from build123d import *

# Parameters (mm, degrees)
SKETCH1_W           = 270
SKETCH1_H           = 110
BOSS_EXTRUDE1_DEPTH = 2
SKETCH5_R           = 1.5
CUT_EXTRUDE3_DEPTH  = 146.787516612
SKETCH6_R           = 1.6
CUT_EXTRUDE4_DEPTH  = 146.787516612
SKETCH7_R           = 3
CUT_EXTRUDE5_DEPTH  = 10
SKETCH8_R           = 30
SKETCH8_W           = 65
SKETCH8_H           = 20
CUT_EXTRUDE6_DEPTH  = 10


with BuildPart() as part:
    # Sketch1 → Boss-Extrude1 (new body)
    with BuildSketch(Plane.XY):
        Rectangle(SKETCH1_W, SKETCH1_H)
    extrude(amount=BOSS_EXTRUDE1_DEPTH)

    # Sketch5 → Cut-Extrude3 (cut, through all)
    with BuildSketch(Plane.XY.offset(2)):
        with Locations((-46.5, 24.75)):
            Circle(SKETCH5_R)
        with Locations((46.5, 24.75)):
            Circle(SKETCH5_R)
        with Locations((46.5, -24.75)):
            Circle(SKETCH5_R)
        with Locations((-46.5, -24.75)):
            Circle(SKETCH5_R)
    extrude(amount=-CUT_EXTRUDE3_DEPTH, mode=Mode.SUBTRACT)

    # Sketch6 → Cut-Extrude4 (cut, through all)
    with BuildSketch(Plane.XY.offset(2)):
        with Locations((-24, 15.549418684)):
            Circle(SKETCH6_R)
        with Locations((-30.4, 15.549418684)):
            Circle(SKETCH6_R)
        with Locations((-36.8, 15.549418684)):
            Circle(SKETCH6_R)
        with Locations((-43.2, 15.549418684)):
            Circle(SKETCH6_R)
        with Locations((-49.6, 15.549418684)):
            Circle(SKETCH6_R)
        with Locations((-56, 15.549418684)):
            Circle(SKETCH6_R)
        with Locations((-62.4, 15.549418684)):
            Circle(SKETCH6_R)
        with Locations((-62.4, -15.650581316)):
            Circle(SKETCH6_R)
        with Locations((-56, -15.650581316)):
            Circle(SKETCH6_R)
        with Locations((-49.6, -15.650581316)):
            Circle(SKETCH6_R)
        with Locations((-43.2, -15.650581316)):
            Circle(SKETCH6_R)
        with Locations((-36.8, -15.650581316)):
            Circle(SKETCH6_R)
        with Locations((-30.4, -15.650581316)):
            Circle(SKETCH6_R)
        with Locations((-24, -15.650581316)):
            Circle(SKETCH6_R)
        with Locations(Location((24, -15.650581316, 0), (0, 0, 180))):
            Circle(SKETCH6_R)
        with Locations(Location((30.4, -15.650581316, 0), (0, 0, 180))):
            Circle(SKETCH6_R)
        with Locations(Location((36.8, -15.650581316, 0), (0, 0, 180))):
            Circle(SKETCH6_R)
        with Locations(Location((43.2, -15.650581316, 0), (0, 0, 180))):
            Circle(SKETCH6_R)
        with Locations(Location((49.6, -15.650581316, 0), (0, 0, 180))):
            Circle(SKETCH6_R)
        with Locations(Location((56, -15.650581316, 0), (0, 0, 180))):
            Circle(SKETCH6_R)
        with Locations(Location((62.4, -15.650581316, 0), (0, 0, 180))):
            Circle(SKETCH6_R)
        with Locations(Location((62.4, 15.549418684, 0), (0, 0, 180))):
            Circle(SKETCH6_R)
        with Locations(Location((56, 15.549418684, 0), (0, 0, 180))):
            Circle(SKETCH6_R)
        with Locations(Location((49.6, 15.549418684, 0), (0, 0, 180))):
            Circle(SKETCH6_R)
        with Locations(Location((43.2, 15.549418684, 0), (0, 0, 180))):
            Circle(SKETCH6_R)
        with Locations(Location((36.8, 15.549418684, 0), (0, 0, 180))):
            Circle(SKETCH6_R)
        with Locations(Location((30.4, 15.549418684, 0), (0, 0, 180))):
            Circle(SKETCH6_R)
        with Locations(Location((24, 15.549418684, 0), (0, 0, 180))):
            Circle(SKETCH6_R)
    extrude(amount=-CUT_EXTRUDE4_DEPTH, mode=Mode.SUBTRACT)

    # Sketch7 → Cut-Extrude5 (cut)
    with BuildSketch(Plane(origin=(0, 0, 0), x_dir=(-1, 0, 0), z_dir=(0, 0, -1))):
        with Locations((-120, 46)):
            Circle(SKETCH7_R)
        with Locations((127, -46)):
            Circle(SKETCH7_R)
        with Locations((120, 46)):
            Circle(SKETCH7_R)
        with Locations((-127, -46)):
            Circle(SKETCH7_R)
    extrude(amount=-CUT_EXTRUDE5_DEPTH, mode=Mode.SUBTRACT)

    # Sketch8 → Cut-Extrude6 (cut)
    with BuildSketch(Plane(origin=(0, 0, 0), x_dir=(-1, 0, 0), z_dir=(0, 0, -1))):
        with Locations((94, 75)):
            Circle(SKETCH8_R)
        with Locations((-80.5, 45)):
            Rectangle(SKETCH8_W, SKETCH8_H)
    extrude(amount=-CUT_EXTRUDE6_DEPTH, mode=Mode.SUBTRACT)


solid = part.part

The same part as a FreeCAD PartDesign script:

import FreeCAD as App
import Part
import Sketcher
from FreeCAD import Vector


def add_polygon(sketch, points):
    """Adds a closed chain of lines whose ends are joined by coincident constraints."""
    first, n = sketch.GeometryCount, len(points)
    for a, b in zip(points, points[1:] + points[:1]):
        sketch.addGeometry(Part.LineSegment(App.Vector(*a, 0), App.Vector(*b, 0)), False)
    for i in range(n):
        sketch.addConstraint(Sketcher.Constraint("Coincident", first + i, 2, first + (i + 1) % n, 1))

doc = App.newDocument("Part")
body = doc.addObject("PartDesign::Body", "Body")

sketch1 = body.newObject("Sketcher::SketchObject", "Sketch")
sketch1.AttachmentSupport = (doc.getObject("XY_Plane"), [""])
sketch1.MapMode = "FlatFace"
add_polygon(sketch1, [(-135, 55), (-135, -55), (135, -55), (135, 55)])
sketch1.addConstraint(Sketcher.Constraint("Vertical", 0))
sketch1.addConstraint(Sketcher.Constraint("Horizontal", 1))
sketch1.addConstraint(Sketcher.Constraint("Vertical", 2))
sketch1.addConstraint(Sketcher.Constraint("Horizontal", 3))
sketch1.addConstraint(Sketcher.Constraint("Symmetric", 0, 2, 2, 2, -1, 1))
sketch1.addConstraint(Sketcher.Constraint("DistanceX", 1, 1, 1, 2, 270.0))
sketch1.addConstraint(Sketcher.Constraint("DistanceY", 0, 2, 0, 1, 110.0))
pad1 = body.newObject("PartDesign::Pad", "Pad")
pad1.Profile = sketch1
pad1.Length = 2

sketch2 = body.newObject("Sketcher::SketchObject", "Sketch001")
sketch2.AttachmentSupport = (doc.getObject("XY_Plane"), [""])
sketch2.MapMode = "FlatFace"
sketch2.AttachmentOffset = App.Placement(Vector(0, 0, 2), App.Rotation())
sketch2.addGeometry(Part.Circle(Vector(-46.5, 24.8, 0), Vector(0, 0, 1), 1.5), False)
sketch2.addGeometry(Part.Circle(Vector(46.5, 24.8, 0), Vector(0, 0, 1), 1.5), False)
sketch2.addGeometry(Part.Circle(Vector(46.5, -24.8, 0), Vector(0, 0, 1), 1.5), False)
sketch2.addGeometry(Part.Circle(Vector(-46.5, -24.8, 0), Vector(0, 0, 1), 1.5), False)
sketch2.addConstraint(Sketcher.Constraint("Equal", 0, 1))
sketch2.addConstraint(Sketcher.Constraint("Equal", 1, 2))
sketch2.addConstraint(Sketcher.Constraint("Equal", 2, 3))
sketch2.addConstraint(Sketcher.Constraint("Symmetric", 0, 3, 2, 3, -1, 1))
sketch2.addConstraint(Sketcher.Constraint("Symmetric", 1, 3, 3, 3, -1, 1))
sketch2.addConstraint(Sketcher.Constraint("Symmetric", 0, 3, 1, 3, -2))
sketch2.addConstraint(Sketcher.Constraint("Diameter", 0, 3.0))
sketch2.addConstraint(Sketcher.Constraint("DistanceX", 0, 3, 1, 3, 93.0))
sketch2.addConstraint(Sketcher.Constraint("DistanceY", 2, 3, 1, 3, 49.5))
pocket1 = body.newObject("PartDesign::Pocket", "Pocket")
pocket1.Profile = sketch2
pocket1.Type = "ThroughAll"

sketch3 = body.newObject("Sketcher::SketchObject", "Sketch002")
sketch3.AttachmentSupport = (doc.getObject("XY_Plane"), [""])
sketch3.MapMode = "FlatFace"
sketch3.AttachmentOffset = App.Placement(Vector(0, 0, 2), App.Rotation())
sketch3.addGeometry(Part.Circle(Vector(-24, 15.5, 0), Vector(0, 0, 1), 1.6), False)
sketch3.addGeometry(Part.Circle(Vector(-30.4, 15.5, 0), Vector(0, 0, 1), 1.6), False)
sketch3.addGeometry(Part.Circle(Vector(-36.8, 15.5, 0), Vector(0, 0, 1), 1.6), False)
sketch3.addGeometry(Part.Circle(Vector(-43.2, 15.5, 0), Vector(0, 0, 1), 1.6), False)
sketch3.addGeometry(Part.Circle(Vector(-49.6, 15.5, 0), Vector(0, 0, 1), 1.6), False)
sketch3.addGeometry(Part.Circle(Vector(-56, 15.5, 0), Vector(0, 0, 1), 1.6), False)
sketch3.addGeometry(Part.Circle(Vector(-62.4, 15.5, 0), Vector(0, 0, 1), 1.6), False)
sketch3.addGeometry(Part.Circle(Vector(-62.4, -15.7, 0), Vector(0, 0, 1), 1.6), False)
sketch3.addGeometry(Part.Circle(Vector(-56, -15.7, 0), Vector(0, 0, 1), 1.6), False)
sketch3.addGeometry(Part.Circle(Vector(-49.6, -15.7, 0), Vector(0, 0, 1), 1.6), False)
sketch3.addGeometry(Part.Circle(Vector(-43.2, -15.7, 0), Vector(0, 0, 1), 1.6), False)
sketch3.addGeometry(Part.Circle(Vector(-36.8, -15.7, 0), Vector(0, 0, 1), 1.6), False)
sketch3.addGeometry(Part.Circle(Vector(-30.4, -15.7, 0), Vector(0, 0, 1), 1.6), False)
sketch3.addGeometry(Part.Circle(Vector(-24, -15.7, 0), Vector(0, 0, 1), 1.6), False)
sketch3.addGeometry(Part.Circle(Vector(24, -15.7, 0), Vector(0, 0, 1), 1.6), False)
sketch3.addGeometry(Part.Circle(Vector(30.4, -15.7, 0), Vector(0, 0, 1), 1.6), False)
sketch3.addGeometry(Part.Circle(Vector(36.8, -15.7, 0), Vector(0, 0, 1), 1.6), False)
sketch3.addGeometry(Part.Circle(Vector(43.2, -15.7, 0), Vector(0, 0, 1), 1.6), False)
sketch3.addGeometry(Part.Circle(Vector(49.6, -15.7, 0), Vector(0, 0, 1), 1.6), False)
sketch3.addGeometry(Part.Circle(Vector(56, -15.7, 0), Vector(0, 0, 1), 1.6), False)
sketch3.addGeometry(Part.Circle(Vector(62.4, -15.7, 0), Vector(0, 0, 1), 1.6), False)
sketch3.addGeometry(Part.Circle(Vector(62.4, 15.5, 0), Vector(0, 0, 1), 1.6), False)
sketch3.addGeometry(Part.Circle(Vector(56, 15.5, 0), Vector(0, 0, 1), 1.6), False)
sketch3.addGeometry(Part.Circle(Vector(49.6, 15.5, 0), Vector(0, 0, 1), 1.6), False)
sketch3.addGeometry(Part.Circle(Vector(43.2, 15.5, 0), Vector(0, 0, 1), 1.6), False)
sketch3.addGeometry(Part.Circle(Vector(36.8, 15.5, 0), Vector(0, 0, 1), 1.6), False)
sketch3.addGeometry(Part.Circle(Vector(30.4, 15.5, 0), Vector(0, 0, 1), 1.6), False)
sketch3.addGeometry(Part.Circle(Vector(24, 15.5, 0), Vector(0, 0, 1), 1.6), False)
sketch3.addConstraint(Sketcher.Constraint("Equal", 0, 1))
sketch3.addConstraint(Sketcher.Constraint("Equal", 1, 2))
sketch3.addConstraint(Sketcher.Constraint("Equal", 2, 3))
sketch3.addConstraint(Sketcher.Constraint("Equal", 3, 4))
sketch3.addConstraint(Sketcher.Constraint("Equal", 4, 5))
sketch3.addConstraint(Sketcher.Constraint("Equal", 5, 6))
sketch3.addConstraint(Sketcher.Constraint("Equal", 6, 7))
sketch3.addConstraint(Sketcher.Constraint("Equal", 7, 8))
sketch3.addConstraint(Sketcher.Constraint("Equal", 8, 9))
sketch3.addConstraint(Sketcher.Constraint("Equal", 9, 10))
sketch3.addConstraint(Sketcher.Constraint("Equal", 10, 11))
sketch3.addConstraint(Sketcher.Constraint("Equal", 11, 12))
sketch3.addConstraint(Sketcher.Constraint("Equal", 12, 13))
sketch3.addConstraint(Sketcher.Constraint("Equal", 13, 14))
sketch3.addConstraint(Sketcher.Constraint("Equal", 14, 15))
sketch3.addConstraint(Sketcher.Constraint("Equal", 15, 16))
sketch3.addConstraint(Sketcher.Constraint("Equal", 16, 17))
sketch3.addConstraint(Sketcher.Constraint("Equal", 17, 18))
sketch3.addConstraint(Sketcher.Constraint("Equal", 18, 19))
sketch3.addConstraint(Sketcher.Constraint("Equal", 19, 20))
sketch3.addConstraint(Sketcher.Constraint("Equal", 20, 21))
sketch3.addConstraint(Sketcher.Constraint("Equal", 21, 22))
sketch3.addConstraint(Sketcher.Constraint("Equal", 22, 23))
sketch3.addConstraint(Sketcher.Constraint("Equal", 23, 24))
sketch3.addConstraint(Sketcher.Constraint("Equal", 24, 25))
sketch3.addConstraint(Sketcher.Constraint("Equal", 25, 26))
sketch3.addConstraint(Sketcher.Constraint("Equal", 26, 27))
sketch3.addConstraint(Sketcher.Constraint("Symmetric", 13, 3, 14, 3, -2))
sketch3.addConstraint(Sketcher.Constraint("Symmetric", 12, 3, 15, 3, -2))
sketch3.addConstraint(Sketcher.Constraint("Symmetric", 11, 3, 16, 3, -2))
sketch3.addConstraint(Sketcher.Constraint("Symmetric", 10, 3, 17, 3, -2))
sketch3.addConstraint(Sketcher.Constraint("Symmetric", 9, 3, 18, 3, -2))
sketch3.addConstraint(Sketcher.Constraint("Symmetric", 8, 3, 19, 3, -2))
sketch3.addConstraint(Sketcher.Constraint("Symmetric", 7, 3, 20, 3, -2))
sketch3.addConstraint(Sketcher.Constraint("Symmetric", 6, 3, 21, 3, -2))
sketch3.addConstraint(Sketcher.Constraint("Symmetric", 5, 3, 22, 3, -2))
sketch3.addConstraint(Sketcher.Constraint("Symmetric", 4, 3, 23, 3, -2))
sketch3.addConstraint(Sketcher.Constraint("Symmetric", 3, 3, 24, 3, -2))
sketch3.addConstraint(Sketcher.Constraint("Symmetric", 2, 3, 25, 3, -2))
sketch3.addConstraint(Sketcher.Constraint("Symmetric", 1, 3, 26, 3, -2))
sketch3.addConstraint(Sketcher.Constraint("Symmetric", 0, 3, 27, 3, -2))
sketch3.addConstraint(Sketcher.Constraint("Horizontal", 0, 3, 1, 3))
sketch3.addConstraint(Sketcher.Constraint("Horizontal", 1, 3, 2, 3))
sketch3.addConstraint(Sketcher.Constraint("Horizontal", 2, 3, 3, 3))
sketch3.addConstraint(Sketcher.Constraint("Horizontal", 3, 3, 4, 3))
sketch3.addConstraint(Sketcher.Constraint("Horizontal", 4, 3, 5, 3))
sketch3.addConstraint(Sketcher.Constraint("Horizontal", 5, 3, 6, 3))
sketch3.addConstraint(Sketcher.Constraint("Horizontal", 7, 3, 8, 3))
sketch3.addConstraint(Sketcher.Constraint("Horizontal", 8, 3, 9, 3))
sketch3.addConstraint(Sketcher.Constraint("Horizontal", 9, 3, 10, 3))
sketch3.addConstraint(Sketcher.Constraint("Horizontal", 10, 3, 11, 3))
sketch3.addConstraint(Sketcher.Constraint("Horizontal", 11, 3, 12, 3))
sketch3.addConstraint(Sketcher.Constraint("Horizontal", 12, 3, 13, 3))
sketch3.addConstraint(Sketcher.Constraint("Vertical", 6, 3, 7, 3))
sketch3.addConstraint(Sketcher.Constraint("Vertical", 5, 3, 8, 3))
sketch3.addConstraint(Sketcher.Constraint("Vertical", 4, 3, 9, 3))
sketch3.addConstraint(Sketcher.Constraint("Vertical", 3, 3, 10, 3))
sketch3.addConstraint(Sketcher.Constraint("Vertical", 2, 3, 11, 3))
sketch3.addConstraint(Sketcher.Constraint("Vertical", 1, 3, 12, 3))
sketch3.addConstraint(Sketcher.Constraint("Vertical", 0, 3, 13, 3))
sketch3.addConstraint(Sketcher.Constraint("Diameter", 0, 3.2))
sketch3.addConstraint(Sketcher.Constraint("DistanceX", 0, 3, -1, 1, 24.0))
sketch3.addConstraint(Sketcher.Constraint("DistanceX", 5, 3, -1, 1, 56.0))
sketch3.addConstraint(Sketcher.Constraint("DistanceX", 6, 3, 1, 3, 32.0))
sketch3.addConstraint(Sketcher.Constraint("DistanceX", 1, 3, -1, 1, 30.4))
sketch3.addConstraint(Sketcher.Constraint("DistanceX", 2, 3, -1, 1, 36.8))
sketch3.addConstraint(Sketcher.Constraint("DistanceX", 3, 3, -1, 1, 43.2))
sketch3.addConstraint(Sketcher.Constraint("DistanceX", 4, 3, -1, 1, 49.6))
sketch3.addConstraint(Sketcher.Constraint("DistanceY", 7, 3, 6, 3, 31.2))
sketch3.addConstraint(Sketcher.Constraint("DistanceY", -1, 1, 0, 3, 15.549419))
pocket2 = body.newObject("PartDesign::Pocket", "Pocket001")
pocket2.Profile = sketch3
pocket2.Type = "ThroughAll"

sketch4 = body.newObject("Sketcher::SketchObject", "Sketch003")
sketch4.AttachmentSupport = (doc.getObject("XY_Plane"), [""])
sketch4.MapMode = "FlatFace"
sketch4.addGeometry(Part.Circle(Vector(120, 46, 0), Vector(0, 0, 1), 3), False)
sketch4.addGeometry(Part.Circle(Vector(-127, -46, 0), Vector(0, 0, 1), 3), False)
sketch4.addGeometry(Part.Circle(Vector(-120, 46, 0), Vector(0, 0, 1), 3), False)
sketch4.addGeometry(Part.Circle(Vector(127, -46, 0), Vector(0, 0, 1), 3), False)
sketch4.addConstraint(Sketcher.Constraint("Equal", 0, 1))
sketch4.addConstraint(Sketcher.Constraint("Equal", 1, 2))
sketch4.addConstraint(Sketcher.Constraint("Equal", 2, 3))
sketch4.addConstraint(Sketcher.Constraint("Symmetric", 0, 3, 2, 3, -2))
sketch4.addConstraint(Sketcher.Constraint("Symmetric", 1, 3, 3, 3, -2))
sketch4.addConstraint(Sketcher.Constraint("Diameter", 0, 6.0))
sketch4.addConstraint(Sketcher.Constraint("DistanceX", -1, 1, 0, 3, 120.0))
sketch4.addConstraint(Sketcher.Constraint("DistanceY", -1, 1, 0, 3, 46.0))
sketch4.addConstraint(Sketcher.Constraint("DistanceX", 1, 3, -1, 1, 127.0))
sketch4.addConstraint(Sketcher.Constraint("DistanceY", 1, 3, -1, 1, 46.0))
pocket3 = body.newObject("PartDesign::Pocket", "Pocket002")
pocket3.Profile = sketch4
pocket3.Length = 10
pocket3.Reversed = True

sketch5 = body.newObject("Sketcher::SketchObject", "Sketch004")
sketch5.AttachmentSupport = (doc.getObject("XY_Plane"), [""])
sketch5.MapMode = "FlatFace"
sketch5.addGeometry(Part.Circle(Vector(-94, 75, 0), Vector(0, 0, 1), 30), False)
add_polygon(sketch5, [(113, 55), (113, 35), (48, 35), (48, 55)])
sketch5.addConstraint(Sketcher.Constraint("Vertical", 1))
sketch5.addConstraint(Sketcher.Constraint("Horizontal", 2))
sketch5.addConstraint(Sketcher.Constraint("Vertical", 3))
sketch5.addConstraint(Sketcher.Constraint("Horizontal", 4))
sketch5.addConstraint(Sketcher.Constraint("Diameter", 0, 60.0))
sketch5.addConstraint(Sketcher.Constraint("DistanceX", 2, 2, 2, 1, 65.0))
sketch5.addConstraint(Sketcher.Constraint("DistanceY", 1, 2, 1, 1, 20.0))
sketch5.addConstraint(Sketcher.Constraint("DistanceX", 0, 3, -1, 1, 94.0))
sketch5.addConstraint(Sketcher.Constraint("DistanceY", -1, 1, 0, 3, 75.0))
sketch5.addConstraint(Sketcher.Constraint("DistanceX", -1, 1, 1, 2, 113.0))
sketch5.addConstraint(Sketcher.Constraint("DistanceY", -1, 1, 1, 2, 35.0))
pocket4 = body.newObject("PartDesign::Pocket", "Pocket003")
pocket4.Profile = sketch5
pocket4.Length = 10
pocket4.Reversed = True

doc.recompute()
